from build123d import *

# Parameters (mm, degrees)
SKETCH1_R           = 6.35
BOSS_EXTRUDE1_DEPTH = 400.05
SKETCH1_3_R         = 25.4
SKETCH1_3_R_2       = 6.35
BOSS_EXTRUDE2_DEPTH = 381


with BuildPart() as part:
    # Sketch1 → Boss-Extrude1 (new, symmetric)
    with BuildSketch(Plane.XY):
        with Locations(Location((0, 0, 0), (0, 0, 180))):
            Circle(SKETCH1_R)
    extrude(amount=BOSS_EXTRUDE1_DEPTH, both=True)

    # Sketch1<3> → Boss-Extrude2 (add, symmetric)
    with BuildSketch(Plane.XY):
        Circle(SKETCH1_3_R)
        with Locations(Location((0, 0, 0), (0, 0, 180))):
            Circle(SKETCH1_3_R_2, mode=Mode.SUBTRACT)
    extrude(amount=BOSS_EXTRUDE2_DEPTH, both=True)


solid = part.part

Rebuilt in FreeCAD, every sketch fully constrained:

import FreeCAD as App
import Part
import Sketcher
from FreeCAD import Vector
Q = App.Units.Quantity

doc = App.newDocument("Part")
body = doc.addObject("PartDesign::Body", "Body")

sketch1 = body.newObject("Sketcher::SketchObject", "Sketch")
sketch1.AttachmentSupport = (doc.getObject("XY_Plane"), [""])
sketch1.MapMode = "FlatFace"
sketch1.addGeometry(Part.Circle(Vector(0, 0, 0), Vector(0, 0, 1), 6), False)
sketch1.addConstraint([
    Sketcher.Constraint("Coincident", 0, 3, -1, 1),
    Sketcher.Constraint("Diameter", 0, Q("0.5 in")),
])
pad1 = body.newObject("PartDesign::Pad", "Pad")
pad1.Profile = sketch1
pad1.Length = Q("31.5 in")
pad1.Midplane = True

sketch2 = body.newObject("Sketcher::SketchObject", "Sketch001")
sketch2.AttachmentSupport = (doc.getObject("XY_Plane"), [""])
sketch2.MapMode = "FlatFace"
sketch2.addGeometry([
    Part.Circle(Vector(0, 0, 0), Vector(0, 0, 1), 25),
    Part.Circle(Vector(0, 0, 0), Vector(0, 0, 1), 6),
], False)
sketch2.addConstraint([
    Sketcher.Constraint("Coincident", 0, 3, -1, 1),
    Sketcher.Constraint("Coincident", 1, 3, -1, 1),
    Sketcher.Constraint("Diameter", 0, Q("2 in")),
    Sketcher.Constraint("Diameter", 1, Q("0.5 in")),
])
pad2 = body.newObject("PartDesign::Pad", "Pad001")
pad2.Profile = sketch2
pad2.Length = Q("30 in")
pad2.Midplane = True

doc.recompute()
